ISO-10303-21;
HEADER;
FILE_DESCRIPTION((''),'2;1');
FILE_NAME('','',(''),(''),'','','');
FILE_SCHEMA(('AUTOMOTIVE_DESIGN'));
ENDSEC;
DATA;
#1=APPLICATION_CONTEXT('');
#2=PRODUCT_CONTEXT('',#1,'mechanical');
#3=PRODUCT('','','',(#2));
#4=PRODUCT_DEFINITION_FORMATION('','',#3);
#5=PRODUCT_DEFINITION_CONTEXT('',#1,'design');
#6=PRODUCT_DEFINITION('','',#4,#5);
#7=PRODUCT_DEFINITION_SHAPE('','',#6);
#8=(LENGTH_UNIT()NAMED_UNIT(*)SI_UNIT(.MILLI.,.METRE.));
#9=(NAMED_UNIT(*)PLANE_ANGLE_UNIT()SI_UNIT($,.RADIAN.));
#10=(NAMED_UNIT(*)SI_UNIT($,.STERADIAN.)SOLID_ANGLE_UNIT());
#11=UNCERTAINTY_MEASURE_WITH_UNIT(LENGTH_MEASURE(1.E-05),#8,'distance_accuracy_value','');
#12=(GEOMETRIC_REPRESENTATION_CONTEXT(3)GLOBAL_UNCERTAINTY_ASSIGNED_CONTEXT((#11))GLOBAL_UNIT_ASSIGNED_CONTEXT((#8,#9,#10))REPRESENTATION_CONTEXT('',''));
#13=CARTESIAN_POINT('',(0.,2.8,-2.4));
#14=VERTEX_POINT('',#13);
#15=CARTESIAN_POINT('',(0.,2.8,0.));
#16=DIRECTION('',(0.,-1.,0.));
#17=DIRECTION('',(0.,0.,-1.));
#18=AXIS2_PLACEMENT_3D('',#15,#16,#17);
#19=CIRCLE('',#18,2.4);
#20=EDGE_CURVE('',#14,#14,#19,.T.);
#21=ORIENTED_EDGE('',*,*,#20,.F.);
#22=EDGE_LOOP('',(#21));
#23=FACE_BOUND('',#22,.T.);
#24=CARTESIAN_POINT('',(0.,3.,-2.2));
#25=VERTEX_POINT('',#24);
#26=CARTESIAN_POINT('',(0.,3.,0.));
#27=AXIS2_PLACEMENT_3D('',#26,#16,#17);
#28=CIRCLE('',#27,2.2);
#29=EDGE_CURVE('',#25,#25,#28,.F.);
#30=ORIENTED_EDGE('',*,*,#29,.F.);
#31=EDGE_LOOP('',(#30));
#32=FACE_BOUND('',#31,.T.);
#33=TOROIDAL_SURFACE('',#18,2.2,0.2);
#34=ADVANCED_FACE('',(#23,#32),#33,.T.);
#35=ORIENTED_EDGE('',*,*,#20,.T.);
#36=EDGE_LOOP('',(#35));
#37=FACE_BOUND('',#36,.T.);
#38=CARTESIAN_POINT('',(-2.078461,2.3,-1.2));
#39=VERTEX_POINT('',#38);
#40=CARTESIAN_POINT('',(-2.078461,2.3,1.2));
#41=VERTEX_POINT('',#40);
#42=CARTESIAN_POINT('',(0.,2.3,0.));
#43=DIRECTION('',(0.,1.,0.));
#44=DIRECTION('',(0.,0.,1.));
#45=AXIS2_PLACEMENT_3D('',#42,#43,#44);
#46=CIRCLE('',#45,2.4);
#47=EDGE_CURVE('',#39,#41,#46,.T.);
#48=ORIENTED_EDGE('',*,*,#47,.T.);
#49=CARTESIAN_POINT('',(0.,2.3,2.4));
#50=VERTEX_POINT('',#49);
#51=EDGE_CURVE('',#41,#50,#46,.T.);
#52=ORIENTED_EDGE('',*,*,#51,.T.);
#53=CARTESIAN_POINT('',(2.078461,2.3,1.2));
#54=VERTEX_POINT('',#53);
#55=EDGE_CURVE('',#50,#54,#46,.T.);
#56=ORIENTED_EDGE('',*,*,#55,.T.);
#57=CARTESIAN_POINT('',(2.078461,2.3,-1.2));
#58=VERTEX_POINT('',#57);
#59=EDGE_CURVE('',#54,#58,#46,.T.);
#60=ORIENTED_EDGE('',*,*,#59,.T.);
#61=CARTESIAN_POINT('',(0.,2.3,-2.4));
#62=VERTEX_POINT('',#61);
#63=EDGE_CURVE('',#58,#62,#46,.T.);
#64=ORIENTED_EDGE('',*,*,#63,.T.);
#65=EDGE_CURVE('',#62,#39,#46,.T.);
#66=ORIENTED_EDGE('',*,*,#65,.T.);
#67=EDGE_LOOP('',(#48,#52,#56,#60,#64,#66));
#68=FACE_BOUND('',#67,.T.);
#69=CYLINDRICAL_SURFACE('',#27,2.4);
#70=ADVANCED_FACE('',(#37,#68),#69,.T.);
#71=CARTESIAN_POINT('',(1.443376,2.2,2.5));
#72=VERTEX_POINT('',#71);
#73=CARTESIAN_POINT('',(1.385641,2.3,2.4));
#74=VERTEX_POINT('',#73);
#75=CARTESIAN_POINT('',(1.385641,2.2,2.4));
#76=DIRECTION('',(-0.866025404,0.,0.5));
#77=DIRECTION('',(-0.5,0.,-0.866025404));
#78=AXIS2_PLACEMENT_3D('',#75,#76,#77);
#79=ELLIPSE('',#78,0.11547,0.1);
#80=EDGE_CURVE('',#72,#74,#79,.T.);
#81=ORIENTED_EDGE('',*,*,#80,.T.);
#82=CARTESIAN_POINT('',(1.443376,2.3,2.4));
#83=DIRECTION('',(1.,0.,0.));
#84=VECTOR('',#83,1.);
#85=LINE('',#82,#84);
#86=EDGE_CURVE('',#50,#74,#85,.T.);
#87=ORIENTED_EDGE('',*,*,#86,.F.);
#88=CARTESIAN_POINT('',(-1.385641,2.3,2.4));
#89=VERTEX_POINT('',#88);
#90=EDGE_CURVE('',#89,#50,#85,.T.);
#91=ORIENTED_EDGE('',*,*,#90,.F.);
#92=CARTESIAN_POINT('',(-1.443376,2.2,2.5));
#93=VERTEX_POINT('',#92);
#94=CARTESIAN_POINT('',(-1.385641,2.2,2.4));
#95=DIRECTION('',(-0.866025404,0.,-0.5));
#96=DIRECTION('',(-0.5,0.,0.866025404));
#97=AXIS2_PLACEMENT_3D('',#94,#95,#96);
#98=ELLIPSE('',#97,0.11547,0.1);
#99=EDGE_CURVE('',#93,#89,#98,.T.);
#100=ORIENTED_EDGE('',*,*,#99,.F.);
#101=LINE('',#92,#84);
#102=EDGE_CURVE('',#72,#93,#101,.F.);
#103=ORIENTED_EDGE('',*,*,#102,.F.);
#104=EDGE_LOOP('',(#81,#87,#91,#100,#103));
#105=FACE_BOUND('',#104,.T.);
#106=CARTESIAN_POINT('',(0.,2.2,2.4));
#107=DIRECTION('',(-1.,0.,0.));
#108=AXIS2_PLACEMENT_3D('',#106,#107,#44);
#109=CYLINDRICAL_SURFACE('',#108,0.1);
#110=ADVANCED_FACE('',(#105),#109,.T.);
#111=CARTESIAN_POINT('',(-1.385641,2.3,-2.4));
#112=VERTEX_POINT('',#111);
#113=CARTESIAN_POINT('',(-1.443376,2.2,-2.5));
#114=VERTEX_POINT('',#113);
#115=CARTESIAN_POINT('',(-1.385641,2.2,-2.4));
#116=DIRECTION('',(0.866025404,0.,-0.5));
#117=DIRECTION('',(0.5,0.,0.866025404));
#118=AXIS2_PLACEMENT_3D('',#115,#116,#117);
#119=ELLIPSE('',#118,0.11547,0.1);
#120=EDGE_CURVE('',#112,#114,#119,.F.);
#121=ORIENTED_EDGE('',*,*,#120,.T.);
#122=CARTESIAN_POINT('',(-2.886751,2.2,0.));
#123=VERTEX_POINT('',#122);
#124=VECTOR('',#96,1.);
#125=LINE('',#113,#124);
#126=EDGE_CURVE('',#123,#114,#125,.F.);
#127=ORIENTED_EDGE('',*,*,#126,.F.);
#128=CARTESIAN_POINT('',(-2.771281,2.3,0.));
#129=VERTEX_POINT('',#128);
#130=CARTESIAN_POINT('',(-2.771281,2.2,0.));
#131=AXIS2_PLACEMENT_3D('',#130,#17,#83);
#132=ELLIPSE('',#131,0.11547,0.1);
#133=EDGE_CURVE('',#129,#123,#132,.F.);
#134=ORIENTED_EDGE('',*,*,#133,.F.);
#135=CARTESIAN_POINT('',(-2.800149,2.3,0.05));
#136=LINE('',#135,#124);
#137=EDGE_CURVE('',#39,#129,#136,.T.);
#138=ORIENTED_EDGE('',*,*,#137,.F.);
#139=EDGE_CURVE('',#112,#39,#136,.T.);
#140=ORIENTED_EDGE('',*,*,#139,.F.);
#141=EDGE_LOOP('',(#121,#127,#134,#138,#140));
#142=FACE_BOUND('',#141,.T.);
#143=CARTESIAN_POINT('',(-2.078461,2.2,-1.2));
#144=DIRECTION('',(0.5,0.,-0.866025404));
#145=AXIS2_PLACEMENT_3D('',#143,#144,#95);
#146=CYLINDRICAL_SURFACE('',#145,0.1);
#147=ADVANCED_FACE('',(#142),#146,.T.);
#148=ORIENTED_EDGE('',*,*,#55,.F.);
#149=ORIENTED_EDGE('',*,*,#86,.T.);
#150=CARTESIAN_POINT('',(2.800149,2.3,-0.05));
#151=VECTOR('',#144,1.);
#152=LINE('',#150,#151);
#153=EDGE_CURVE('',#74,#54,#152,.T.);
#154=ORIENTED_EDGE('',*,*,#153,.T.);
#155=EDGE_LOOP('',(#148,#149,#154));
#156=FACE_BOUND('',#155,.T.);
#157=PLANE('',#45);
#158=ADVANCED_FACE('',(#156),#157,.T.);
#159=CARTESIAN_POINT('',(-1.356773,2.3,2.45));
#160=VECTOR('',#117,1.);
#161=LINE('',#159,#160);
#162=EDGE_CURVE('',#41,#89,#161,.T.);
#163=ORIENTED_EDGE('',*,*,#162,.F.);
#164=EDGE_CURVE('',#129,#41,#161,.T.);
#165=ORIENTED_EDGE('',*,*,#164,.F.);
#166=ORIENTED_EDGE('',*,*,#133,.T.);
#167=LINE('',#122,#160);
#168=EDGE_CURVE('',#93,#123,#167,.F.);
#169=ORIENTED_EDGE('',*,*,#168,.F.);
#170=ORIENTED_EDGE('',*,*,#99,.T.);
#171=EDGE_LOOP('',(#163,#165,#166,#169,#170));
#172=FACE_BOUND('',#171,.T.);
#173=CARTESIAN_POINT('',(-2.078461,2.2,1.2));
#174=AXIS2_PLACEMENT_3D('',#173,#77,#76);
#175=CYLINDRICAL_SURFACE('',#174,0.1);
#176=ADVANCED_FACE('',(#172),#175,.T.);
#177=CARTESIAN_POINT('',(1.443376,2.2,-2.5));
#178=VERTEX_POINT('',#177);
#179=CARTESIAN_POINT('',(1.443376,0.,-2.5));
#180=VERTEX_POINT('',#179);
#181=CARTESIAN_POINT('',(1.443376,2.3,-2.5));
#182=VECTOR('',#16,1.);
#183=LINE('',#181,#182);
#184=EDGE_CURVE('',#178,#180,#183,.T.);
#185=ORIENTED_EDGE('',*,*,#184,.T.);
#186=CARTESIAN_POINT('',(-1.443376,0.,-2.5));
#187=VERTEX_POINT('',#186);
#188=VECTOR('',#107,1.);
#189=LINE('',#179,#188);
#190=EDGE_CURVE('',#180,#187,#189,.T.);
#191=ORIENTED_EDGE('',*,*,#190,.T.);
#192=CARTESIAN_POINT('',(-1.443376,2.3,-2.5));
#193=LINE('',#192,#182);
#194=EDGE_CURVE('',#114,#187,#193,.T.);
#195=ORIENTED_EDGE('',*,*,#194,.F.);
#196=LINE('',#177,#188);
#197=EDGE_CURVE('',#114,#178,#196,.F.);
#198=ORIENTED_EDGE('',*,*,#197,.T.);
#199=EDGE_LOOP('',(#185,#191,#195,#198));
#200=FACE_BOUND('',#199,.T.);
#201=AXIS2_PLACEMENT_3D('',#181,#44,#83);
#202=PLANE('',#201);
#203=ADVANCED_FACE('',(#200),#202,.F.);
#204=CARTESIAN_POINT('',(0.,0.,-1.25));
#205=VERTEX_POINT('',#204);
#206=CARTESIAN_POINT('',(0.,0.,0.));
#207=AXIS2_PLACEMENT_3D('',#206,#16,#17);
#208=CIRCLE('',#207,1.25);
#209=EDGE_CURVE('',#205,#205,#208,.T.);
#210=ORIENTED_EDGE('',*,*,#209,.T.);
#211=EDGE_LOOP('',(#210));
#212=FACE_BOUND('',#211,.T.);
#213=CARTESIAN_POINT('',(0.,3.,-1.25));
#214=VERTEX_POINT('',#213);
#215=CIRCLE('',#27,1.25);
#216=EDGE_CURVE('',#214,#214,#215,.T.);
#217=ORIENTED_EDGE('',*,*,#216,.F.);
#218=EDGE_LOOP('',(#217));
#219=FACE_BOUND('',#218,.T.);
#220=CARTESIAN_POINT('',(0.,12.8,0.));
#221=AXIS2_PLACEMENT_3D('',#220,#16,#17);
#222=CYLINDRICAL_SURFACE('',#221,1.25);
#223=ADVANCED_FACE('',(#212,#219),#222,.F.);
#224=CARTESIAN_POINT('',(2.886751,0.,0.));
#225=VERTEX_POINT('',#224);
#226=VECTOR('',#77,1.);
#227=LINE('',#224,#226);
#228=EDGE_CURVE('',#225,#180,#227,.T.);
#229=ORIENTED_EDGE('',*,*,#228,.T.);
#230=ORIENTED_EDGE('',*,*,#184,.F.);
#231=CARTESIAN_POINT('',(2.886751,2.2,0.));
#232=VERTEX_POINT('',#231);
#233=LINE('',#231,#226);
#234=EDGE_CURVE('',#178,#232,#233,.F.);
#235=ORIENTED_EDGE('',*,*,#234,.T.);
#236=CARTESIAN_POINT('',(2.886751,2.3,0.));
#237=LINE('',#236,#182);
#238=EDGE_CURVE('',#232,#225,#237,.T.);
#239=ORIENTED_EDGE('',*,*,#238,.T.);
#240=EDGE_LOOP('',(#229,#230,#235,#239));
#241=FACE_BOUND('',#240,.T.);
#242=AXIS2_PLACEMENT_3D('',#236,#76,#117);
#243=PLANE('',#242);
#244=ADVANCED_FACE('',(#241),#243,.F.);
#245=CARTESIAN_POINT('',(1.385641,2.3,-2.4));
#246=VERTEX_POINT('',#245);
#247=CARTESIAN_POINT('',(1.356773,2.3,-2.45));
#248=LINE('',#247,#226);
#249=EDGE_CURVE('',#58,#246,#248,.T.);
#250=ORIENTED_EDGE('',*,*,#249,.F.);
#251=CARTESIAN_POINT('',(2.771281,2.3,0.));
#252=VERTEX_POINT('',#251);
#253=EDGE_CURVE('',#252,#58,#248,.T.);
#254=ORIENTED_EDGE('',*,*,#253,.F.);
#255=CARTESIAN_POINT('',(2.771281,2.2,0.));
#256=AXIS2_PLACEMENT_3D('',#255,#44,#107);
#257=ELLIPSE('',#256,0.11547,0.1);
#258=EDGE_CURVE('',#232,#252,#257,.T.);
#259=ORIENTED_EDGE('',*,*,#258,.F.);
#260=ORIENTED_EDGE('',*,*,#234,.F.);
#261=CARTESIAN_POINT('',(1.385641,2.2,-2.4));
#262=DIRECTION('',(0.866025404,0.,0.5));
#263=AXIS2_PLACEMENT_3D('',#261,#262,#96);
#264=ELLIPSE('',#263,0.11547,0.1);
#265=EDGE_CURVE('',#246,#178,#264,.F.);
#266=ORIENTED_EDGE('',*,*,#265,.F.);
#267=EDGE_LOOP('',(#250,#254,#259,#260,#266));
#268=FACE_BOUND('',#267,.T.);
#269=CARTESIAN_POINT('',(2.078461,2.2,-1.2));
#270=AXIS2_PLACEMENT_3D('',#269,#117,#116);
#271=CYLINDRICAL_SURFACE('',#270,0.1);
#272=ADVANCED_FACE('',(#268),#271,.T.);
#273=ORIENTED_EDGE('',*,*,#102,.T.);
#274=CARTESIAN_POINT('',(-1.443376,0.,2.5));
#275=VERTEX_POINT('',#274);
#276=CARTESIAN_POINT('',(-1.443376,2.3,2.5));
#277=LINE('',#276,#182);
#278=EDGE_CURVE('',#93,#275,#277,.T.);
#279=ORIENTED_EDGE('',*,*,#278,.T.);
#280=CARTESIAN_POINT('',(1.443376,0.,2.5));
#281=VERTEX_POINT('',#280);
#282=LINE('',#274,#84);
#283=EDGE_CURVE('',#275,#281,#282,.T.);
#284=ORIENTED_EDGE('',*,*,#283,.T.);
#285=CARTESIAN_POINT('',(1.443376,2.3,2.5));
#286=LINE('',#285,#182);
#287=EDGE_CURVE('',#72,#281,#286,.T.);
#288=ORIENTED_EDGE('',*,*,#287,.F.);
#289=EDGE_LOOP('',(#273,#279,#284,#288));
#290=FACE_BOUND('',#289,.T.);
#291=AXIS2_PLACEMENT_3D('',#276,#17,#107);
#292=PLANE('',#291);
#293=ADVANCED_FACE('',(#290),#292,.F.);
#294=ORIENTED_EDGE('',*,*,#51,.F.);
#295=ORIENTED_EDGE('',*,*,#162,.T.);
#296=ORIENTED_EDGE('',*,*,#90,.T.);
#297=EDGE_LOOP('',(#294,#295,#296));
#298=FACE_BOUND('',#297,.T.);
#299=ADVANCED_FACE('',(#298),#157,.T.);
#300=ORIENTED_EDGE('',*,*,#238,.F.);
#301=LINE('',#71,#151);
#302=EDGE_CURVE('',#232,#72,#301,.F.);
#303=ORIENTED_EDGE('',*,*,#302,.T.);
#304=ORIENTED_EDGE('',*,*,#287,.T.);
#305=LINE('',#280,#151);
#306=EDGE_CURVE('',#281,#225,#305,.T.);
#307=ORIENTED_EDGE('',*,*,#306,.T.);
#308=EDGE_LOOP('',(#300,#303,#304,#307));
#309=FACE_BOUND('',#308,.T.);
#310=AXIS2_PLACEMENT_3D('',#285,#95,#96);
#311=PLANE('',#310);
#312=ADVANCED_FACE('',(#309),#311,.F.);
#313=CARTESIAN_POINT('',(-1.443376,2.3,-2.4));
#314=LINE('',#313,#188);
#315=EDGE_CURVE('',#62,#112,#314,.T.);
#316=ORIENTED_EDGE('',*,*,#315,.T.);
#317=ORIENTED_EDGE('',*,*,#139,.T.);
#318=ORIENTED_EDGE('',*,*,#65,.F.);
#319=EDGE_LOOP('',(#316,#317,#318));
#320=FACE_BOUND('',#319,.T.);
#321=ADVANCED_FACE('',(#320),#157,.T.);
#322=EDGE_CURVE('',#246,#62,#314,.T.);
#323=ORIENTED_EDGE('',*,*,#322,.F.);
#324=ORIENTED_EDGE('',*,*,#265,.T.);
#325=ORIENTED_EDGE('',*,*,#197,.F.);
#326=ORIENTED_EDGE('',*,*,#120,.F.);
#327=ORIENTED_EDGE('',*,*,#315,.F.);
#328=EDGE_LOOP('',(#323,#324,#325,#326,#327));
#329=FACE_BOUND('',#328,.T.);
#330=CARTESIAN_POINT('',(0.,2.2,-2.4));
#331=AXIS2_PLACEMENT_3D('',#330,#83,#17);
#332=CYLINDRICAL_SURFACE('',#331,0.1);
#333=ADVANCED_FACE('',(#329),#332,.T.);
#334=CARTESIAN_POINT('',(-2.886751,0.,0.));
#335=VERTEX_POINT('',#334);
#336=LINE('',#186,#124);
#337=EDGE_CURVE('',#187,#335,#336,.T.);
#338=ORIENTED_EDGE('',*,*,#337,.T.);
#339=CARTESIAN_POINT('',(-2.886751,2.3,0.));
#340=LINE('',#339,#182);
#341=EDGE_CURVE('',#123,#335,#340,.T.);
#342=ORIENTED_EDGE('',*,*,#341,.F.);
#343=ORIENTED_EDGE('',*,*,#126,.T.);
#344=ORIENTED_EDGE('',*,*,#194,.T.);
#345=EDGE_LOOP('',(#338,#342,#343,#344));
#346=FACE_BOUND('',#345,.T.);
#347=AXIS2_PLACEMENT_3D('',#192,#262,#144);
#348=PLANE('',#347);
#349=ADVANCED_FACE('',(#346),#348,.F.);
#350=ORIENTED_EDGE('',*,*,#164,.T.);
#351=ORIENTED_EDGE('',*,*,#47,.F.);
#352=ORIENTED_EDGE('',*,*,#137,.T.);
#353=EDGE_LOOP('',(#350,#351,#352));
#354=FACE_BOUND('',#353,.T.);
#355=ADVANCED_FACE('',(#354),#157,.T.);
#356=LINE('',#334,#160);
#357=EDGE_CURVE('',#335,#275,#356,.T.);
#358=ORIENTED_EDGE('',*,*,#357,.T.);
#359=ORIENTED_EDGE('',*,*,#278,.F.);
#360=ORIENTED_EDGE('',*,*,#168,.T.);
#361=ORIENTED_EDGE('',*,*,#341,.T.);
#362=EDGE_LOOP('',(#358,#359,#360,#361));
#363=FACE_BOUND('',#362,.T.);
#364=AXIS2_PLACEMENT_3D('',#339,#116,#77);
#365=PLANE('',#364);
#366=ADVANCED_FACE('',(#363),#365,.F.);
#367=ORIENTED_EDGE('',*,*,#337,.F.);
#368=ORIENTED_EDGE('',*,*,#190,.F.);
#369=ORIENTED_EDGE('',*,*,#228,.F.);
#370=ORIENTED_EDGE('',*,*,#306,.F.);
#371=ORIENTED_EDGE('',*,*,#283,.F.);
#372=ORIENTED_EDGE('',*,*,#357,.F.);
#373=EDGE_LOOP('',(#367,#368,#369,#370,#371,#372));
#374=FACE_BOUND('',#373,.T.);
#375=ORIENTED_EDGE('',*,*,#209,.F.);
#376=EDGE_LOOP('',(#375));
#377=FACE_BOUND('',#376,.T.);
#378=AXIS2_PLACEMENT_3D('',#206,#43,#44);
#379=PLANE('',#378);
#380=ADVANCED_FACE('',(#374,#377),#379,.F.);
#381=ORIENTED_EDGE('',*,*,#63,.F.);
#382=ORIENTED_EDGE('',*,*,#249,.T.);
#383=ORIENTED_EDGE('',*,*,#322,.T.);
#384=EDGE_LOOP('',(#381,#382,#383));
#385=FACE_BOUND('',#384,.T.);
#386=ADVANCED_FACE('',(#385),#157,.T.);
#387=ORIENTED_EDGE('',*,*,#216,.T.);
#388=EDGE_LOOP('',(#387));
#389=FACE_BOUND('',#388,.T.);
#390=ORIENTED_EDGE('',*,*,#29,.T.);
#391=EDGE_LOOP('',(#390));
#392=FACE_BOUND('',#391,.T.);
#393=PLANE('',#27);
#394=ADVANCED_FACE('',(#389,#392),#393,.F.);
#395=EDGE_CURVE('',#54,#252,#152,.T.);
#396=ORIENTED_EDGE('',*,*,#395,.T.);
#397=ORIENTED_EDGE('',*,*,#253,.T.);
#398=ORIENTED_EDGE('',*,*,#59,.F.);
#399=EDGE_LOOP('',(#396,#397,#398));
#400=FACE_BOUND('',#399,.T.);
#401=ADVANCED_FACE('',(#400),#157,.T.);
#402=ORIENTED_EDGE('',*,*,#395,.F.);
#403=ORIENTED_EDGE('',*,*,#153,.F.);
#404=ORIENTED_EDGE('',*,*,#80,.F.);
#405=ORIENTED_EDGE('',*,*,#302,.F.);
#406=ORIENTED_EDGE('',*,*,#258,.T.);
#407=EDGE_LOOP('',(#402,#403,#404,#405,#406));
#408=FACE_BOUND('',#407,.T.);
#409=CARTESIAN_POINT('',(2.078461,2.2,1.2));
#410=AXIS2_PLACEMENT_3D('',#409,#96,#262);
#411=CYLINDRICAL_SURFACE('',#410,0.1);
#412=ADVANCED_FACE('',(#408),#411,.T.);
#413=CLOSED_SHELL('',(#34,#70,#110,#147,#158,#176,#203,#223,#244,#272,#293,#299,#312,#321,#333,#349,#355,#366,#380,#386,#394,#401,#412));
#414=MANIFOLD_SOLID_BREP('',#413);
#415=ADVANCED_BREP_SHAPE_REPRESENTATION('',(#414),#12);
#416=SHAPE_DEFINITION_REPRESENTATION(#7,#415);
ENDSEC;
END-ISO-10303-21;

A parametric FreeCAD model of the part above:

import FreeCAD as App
import Part
import Sketcher
from FreeCAD import Vector
Q = App.Units.Quantity


def edges_at(feature, points):
    """Names of the edges that pass closest to the given points."""
    edges = feature.Shape.Edges
    near = lambda p: min(range(len(edges)), key=lambda i: edges[i].distToShape(Part.Vertex(*p))[0])
    return sorted({f"Edge{near(p) + 1}" for p in points})


def add_polygon(sketch, points):
    """Adds a closed chain of lines whose ends are joined by coincident constraints."""
    first, n = sketch.GeometryCount, len(points)
    for a, b in zip(points, points[1:] + points[:1]):
        sketch.addGeometry(Part.LineSegment(App.Vector(*a, 0), App.Vector(*b, 0)), False)
    for i in range(n):
        sketch.addConstraint(Sketcher.Constraint("Coincident", first + i, 2, first + (i + 1) % n, 1))

doc = App.newDocument("Part")
body = doc.addObject("PartDesign::Body", "Body")

sketch1 = body.newObject("Sketcher::SketchObject", "Sketch")
sketch1.AttachmentSupport = (doc.getObject("XZ_Plane"), [""])
sketch1.MapMode = "FlatFace"
add_polygon(sketch1, [(1.443376, 2.5), (2.886751, 0), (1.443376, -2.5), (-1.443376, -2.5), (-2.886751, 0), (-1.443376, 2.5)])
sketch1.addConstraint([
    Sketcher.Constraint("Horizontal", 2),
    Sketcher.Constraint("Horizontal", 5),
    Sketcher.Constraint("Symmetric", 0, 2, 3, 2, -1, 1),
    Sketcher.Constraint("Symmetric", 1, 2, 4, 2, -1, 1),
    Sketcher.Constraint("PointOnObject", 0, 2, -1),
    Sketcher.Constraint("Parallel", 0, 3),
    Sketcher.Constraint("Vertical", 2, 2, 4, 2),
    Sketcher.Constraint("Angle", 0, Q("-60 deg")),
    Sketcher.Constraint("DistanceY", 2, 2, 4, 2, 5.0),
    Sketcher.Constraint("DistanceX", 2, 2, 2, 1, 2.886751),
])
pad1 = body.newObject("PartDesign::Pad", "Pad")
pad1.Profile = sketch1
pad1.Length = 2.3
pad1.Reversed = True
doc.recompute()

fillet = body.newObject("PartDesign::Fillet", "Fillet")
fillet.Base = (pad1, edges_at(pad1, [
    (2.165, 2.3, -1.25),
    (0, 2.3, -2.5),
    (-2.165, 2.3, -1.25),
    (-2.165, 2.3, 1.25),
    (0, 2.3, 2.5),
    (2.165, 2.3, 1.25),
]))
fillet.Radius = 0.1

sketch2 = body.newObject("Sketcher::SketchObject", "Sketch001")
sketch2.AttachmentSupport = (doc.getObject("XZ_Plane"), [""])
sketch2.MapMode = "FlatFace"
sketch2.addGeometry(Part.Circle(Vector(0, 0, 0), Vector(0, 0, 1), 2.4), False)
sketch2.addConstraint([
    Sketcher.Constraint("Coincident", 0, 3, -1, 1),
    Sketcher.Constraint("Diameter", 0, 4.8),
])
pad2 = body.newObject("PartDesign::Pad", "Pad001")
pad2.Profile = sketch2
pad2.Length = 3
pad2.Reversed = True
doc.recompute()

fillet2 = body.newObject("PartDesign::Fillet", "Fillet001")
fillet2.Base = (pad2, edges_at(pad2, [(-2.4, 3, 0)]))
fillet2.Radius = 0.2

sketch3 = body.newObject("Sketcher::SketchObject", "Sketch002")
sketch3.AttachmentSupport = (doc.getObject("XZ_Plane"), [""])
sketch3.MapMode = "FlatFace"
sketch3.addGeometry(Part.Circle(Vector(0, 0, 0), Vector(0, 0, 1), 1.25), False)
sketch3.addConstraint([
    Sketcher.Constraint("Coincident", 0, 3, -1, 1),
    Sketcher.Constraint("Diameter", 0, 2.5),
])
pocket1 = body.newObject("PartDesign::Pocket", "Pocket")
pocket1.Profile = sketch3
pocket1.Length = 12.8

doc.recompute()
